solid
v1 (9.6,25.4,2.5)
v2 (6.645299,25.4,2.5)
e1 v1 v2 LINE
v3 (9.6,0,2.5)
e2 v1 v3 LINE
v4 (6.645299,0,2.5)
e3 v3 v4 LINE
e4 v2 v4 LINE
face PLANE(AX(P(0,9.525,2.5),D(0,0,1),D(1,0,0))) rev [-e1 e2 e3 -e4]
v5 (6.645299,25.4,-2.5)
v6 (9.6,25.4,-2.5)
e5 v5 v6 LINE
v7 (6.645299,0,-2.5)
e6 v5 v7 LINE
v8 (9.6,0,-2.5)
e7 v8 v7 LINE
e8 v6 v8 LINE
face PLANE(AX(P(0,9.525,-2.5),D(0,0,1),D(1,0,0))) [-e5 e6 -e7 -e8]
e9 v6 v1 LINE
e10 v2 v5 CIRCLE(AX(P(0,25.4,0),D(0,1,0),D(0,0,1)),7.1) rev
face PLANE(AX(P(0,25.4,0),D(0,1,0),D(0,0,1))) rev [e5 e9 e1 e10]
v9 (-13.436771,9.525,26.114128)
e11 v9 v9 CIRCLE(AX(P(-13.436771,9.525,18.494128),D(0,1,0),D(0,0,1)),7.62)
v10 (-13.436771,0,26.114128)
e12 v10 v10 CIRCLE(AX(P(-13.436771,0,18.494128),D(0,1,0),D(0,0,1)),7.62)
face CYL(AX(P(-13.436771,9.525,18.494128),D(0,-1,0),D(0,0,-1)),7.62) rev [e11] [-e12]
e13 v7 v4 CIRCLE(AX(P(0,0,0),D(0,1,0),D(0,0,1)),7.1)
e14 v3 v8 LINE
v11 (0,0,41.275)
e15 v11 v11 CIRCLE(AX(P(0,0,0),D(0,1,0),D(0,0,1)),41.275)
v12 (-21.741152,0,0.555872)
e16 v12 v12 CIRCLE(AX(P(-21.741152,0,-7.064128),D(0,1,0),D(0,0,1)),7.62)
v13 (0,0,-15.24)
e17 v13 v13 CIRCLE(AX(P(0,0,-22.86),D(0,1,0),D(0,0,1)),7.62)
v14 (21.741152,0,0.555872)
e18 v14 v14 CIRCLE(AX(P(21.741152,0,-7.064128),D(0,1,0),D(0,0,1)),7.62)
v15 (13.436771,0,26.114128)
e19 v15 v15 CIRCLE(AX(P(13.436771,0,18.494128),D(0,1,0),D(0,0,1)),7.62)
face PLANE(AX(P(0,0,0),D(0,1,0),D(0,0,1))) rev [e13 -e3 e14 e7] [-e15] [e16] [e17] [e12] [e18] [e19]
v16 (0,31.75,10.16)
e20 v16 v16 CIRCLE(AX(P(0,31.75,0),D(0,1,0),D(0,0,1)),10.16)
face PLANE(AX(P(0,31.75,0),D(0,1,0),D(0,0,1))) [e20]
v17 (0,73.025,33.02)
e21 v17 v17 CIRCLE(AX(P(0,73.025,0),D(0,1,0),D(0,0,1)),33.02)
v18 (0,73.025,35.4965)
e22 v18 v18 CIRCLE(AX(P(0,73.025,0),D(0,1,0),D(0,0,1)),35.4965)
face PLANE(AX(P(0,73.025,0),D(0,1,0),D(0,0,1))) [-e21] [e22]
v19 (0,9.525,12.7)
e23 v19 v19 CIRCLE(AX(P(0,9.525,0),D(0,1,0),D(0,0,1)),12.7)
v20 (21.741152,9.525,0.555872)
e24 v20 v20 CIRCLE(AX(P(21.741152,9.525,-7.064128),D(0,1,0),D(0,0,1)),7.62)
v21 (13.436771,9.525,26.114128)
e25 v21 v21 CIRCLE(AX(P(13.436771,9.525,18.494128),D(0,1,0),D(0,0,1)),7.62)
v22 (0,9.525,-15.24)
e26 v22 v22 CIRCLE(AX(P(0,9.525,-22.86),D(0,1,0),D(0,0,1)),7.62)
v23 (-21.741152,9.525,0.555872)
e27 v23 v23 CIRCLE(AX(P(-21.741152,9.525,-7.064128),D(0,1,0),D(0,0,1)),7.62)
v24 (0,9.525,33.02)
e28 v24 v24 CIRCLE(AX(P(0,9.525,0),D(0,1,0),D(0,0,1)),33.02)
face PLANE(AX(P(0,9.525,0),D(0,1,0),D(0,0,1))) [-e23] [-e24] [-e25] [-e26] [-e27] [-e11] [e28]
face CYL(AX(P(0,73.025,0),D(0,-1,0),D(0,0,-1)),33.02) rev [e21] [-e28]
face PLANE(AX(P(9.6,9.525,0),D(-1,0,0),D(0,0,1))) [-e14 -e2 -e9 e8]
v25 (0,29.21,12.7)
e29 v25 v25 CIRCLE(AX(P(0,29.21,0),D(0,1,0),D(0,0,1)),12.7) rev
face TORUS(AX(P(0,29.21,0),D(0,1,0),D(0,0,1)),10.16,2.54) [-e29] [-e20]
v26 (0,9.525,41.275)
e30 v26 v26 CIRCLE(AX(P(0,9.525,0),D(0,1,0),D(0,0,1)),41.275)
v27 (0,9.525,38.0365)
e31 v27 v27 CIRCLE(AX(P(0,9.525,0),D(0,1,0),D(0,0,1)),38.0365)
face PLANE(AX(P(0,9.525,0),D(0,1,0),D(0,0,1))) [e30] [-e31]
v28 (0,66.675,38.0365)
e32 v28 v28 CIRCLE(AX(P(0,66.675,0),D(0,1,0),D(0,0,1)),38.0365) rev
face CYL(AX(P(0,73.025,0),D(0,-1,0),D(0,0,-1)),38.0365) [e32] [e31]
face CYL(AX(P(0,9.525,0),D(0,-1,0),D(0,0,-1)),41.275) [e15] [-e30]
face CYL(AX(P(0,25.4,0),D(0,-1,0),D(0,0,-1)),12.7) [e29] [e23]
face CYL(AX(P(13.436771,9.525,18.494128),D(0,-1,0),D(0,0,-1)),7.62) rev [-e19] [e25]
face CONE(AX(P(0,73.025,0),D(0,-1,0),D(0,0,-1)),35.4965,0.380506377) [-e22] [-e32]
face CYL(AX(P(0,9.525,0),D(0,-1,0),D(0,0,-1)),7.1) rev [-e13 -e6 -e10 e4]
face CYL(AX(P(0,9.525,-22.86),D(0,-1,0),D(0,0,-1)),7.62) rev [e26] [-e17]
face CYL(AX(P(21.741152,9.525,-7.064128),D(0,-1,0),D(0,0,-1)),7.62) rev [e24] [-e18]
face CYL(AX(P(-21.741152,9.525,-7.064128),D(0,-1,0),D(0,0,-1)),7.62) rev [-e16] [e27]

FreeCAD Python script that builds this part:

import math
import FreeCAD as App
import Part
import Sketcher
Q = App.Units.Quantity


def edges_at(feature, points):
    """Names of the edges that pass closest to the given points."""
    edges = feature.Shape.Edges
    near = lambda p: min(range(len(edges)), key=lambda i: edges[i].distToShape(Part.Vertex(*p))[0])
    return sorted({f"Edge{near(p) + 1}" for p in points})

doc = App.newDocument("Part")
params = doc.addObject("Spreadsheet::Sheet", "Params")
for row, (alias, value) in enumerate([
    ("sketch1_diameter", "0.6 in"),
    ("sketch1_diameter2", "3.25 in"),
    ("pad1_length", "0.375 in"),
    ("sketch2_diameter", "2.6 in"),
    ("sketch2_diameter2", "2.995 in"),
    ("pad2_length", "2.5 in"),
    ("sketch3_diameter", "1 in"),
    ("pad3_length", "0.625 in"),
    ("chamfer_size", "0.25 in"),
    ("chamfer_size2", "0.1 in"),
    ("sketch4_diameter", "1 in"),
    ("pad4_length", "0.25 in"),
    ("fillet_radius", "0.1 in"),
], start=1):
    params.set(f"A{row}", alias)
    params.set(f"B{row}", "=" + value)
    params.setAlias(f"B{row}", alias)

body = doc.addObject("PartDesign::Body", "Body")

# Sketch on XZ plane
sketch1 = body.newObject("Sketcher::SketchObject", "Sketch")
sketch1.AttachmentSupport = (doc.getObject("XZ_Plane"), [""])
sketch1.MapMode = "FlatFace"
sketch1.addGeometry(Part.Circle(App.Vector(0, 0, 0), App.Vector(0, 0, 1), 41.3), False)
sketch1.addGeometry(Part.Circle(App.Vector(-13.4, 18.5, 0), App.Vector(0, 0, 1), 7.6), False)
sketch1.addGeometry(Part.Circle(App.Vector(13.4, 18.5, 0), App.Vector(0, 0, 1), 7.6), False)
sketch1.addGeometry(Part.LineSegment(App.Vector(9.6, -2.5, 0), App.Vector(9.6, 2.5, 0)), False)
sketch1.addGeometry(Part.LineSegment(App.Vector(9.6, 2.5, 0), App.Vector(6.6, 2.5, 0)), False)
sketch1.addGeometry(Part.ArcOfCircle(Part.Circle(App.Vector(0, 0, 0), App.Vector(0, 0, 1), 7.1), math.radians(21), math.radians(339)), False)
sketch1.addGeometry(Part.LineSegment(App.Vector(6.6, -2.5, 0), App.Vector(9.6, -2.5, 0)), False)
sketch1.addGeometry(Part.Circle(App.Vector(-21.7, -7.1, 0), App.Vector(0, 0, 1), 7.6), False)
sketch1.addGeometry(Part.Circle(App.Vector(0, -22.9, 0), App.Vector(0, 0, 1), 7.6), False)
sketch1.addGeometry(Part.Circle(App.Vector(21.7, -7.1, 0), App.Vector(0, 0, 1), 7.6), False)
sketch1.addConstraint(Sketcher.Constraint("Coincident", 3, 2, 4, 1))
sketch1.addConstraint(Sketcher.Constraint("Coincident", 4, 2, 5, 1))
sketch1.addConstraint(Sketcher.Constraint("Coincident", 5, 2, 6, 1))
sketch1.addConstraint(Sketcher.Constraint("Coincident", 6, 2, 3, 1))
sketch1.addConstraint(Sketcher.Constraint("Vertical", 3))
sketch1.addConstraint(Sketcher.Constraint("Horizontal", 4))
sketch1.addConstraint(Sketcher.Constraint("Horizontal", 6))
sketch1.addConstraint(Sketcher.Constraint("Coincident", 0, 3, -1, 1))
sketch1.addConstraint(Sketcher.Constraint("Coincident", 5, 3, -1, 1))
sketch1.addConstraint(Sketcher.Constraint("Equal", 1, 2))
sketch1.addConstraint(Sketcher.Constraint("Equal", 2, 7))
sketch1.addConstraint(Sketcher.Constraint("Equal", 7, 8))
sketch1.addConstraint(Sketcher.Constraint("Equal", 8, 9))
sketch1.addConstraint(Sketcher.Constraint("Symmetric", 1, 3, 2, 3, -2))
sketch1.addConstraint(Sketcher.Constraint("Symmetric", 7, 3, 9, 3, -2))
sketch1.addConstraint(Sketcher.Constraint("PointOnObject", 8, 3, -2))
sketch1.addConstraint(Sketcher.Constraint("Vertical", 4, 2, 5, 2))
sketch1.addConstraint(Sketcher.Constraint("Diameter", 1, Q("0.6 in")))
sketch1.addConstraint(Sketcher.Constraint("Diameter", 0, Q("3.25 in")))
sketch1.addConstraint(Sketcher.Constraint("DistanceY", 8, 3, -1, 1, Q("0.9 in")))
sketch1.addConstraint(Sketcher.Constraint("Radius", 5, Q("7.1 mm")))
sketch1.addConstraint(Sketcher.Constraint("DistanceX", 4, 2, 4, 1, Q("2.954701 mm")))
sketch1.addConstraint(Sketcher.Constraint("DistanceY", 3, 1, 3, 2, Q("5 mm")))
sketch1.addConstraint(Sketcher.Constraint("DistanceX", 1, 3, -1, 1, Q("13.436771 mm")))
sketch1.addConstraint(Sketcher.Constraint("DistanceY", -1, 1, 1, 3, Q("18.494128 mm")))
sketch1.addConstraint(Sketcher.Constraint("DistanceX", 7, 3, -1, 1, Q("21.741152 mm")))
sketch1.addConstraint(Sketcher.Constraint("DistanceY", 7, 3, -1, 1, Q("7.064128 mm")))
sketch1.setExpression("Constraints[17]", "Params.sketch1_diameter")
sketch1.setExpression("Constraints[18]", "Params.sketch1_diameter2")
pad1 = body.newObject("PartDesign::Pad", "Pad")
pad1.Profile = sketch1
pad1.setExpression("Length", "Params.pad1_length")
pad1.Reversed = True

# Sketch on XZ plane
sketch2 = body.newObject("Sketcher::SketchObject", "Sketch001")
sketch2.AttachmentSupport = (doc.getObject("XZ_Plane"), [""])
sketch2.MapMode = "FlatFace"
sketch2.AttachmentOffset = App.Placement(App.Vector(0, 0, -0.375 * 25.4), App.Rotation())
sketch2.addGeometry(Part.Circle(App.Vector(0, 0, 0), App.Vector(0, 0, 1), 38), False)
sketch2.addGeometry(Part.Circle(App.Vector(0, 0, 0), App.Vector(0, 0, 1), 33), False)
sketch2.addConstraint(Sketcher.Constraint("Coincident", 0, 3, -1, 1))
sketch2.addConstraint(Sketcher.Constraint("Coincident", 1, 3, -1, 1))
sketch2.addConstraint(Sketcher.Constraint("Diameter", 1, Q("2.6 in")))
sketch2.addConstraint(Sketcher.Constraint("Diameter", 0, Q("2.995 in")))
sketch2.setExpression("Constraints[2]", "Params.sketch2_diameter")
sketch2.setExpression("Constraints[3]", "Params.sketch2_diameter2")
pad2 = body.newObject("PartDesign::Pad", "Pad001")
pad2.Profile = sketch2
pad2.setExpression("Length", "Params.pad2_length")
pad2.Reversed = True

# Sketch on XZ plane
sketch3 = body.newObject("Sketcher::SketchObject", "Sketch002")
sketch3.AttachmentSupport = (doc.getObject("XZ_Plane"), [""])
sketch3.MapMode = "FlatFace"
sketch3.AttachmentOffset = App.Placement(App.Vector(0, 0, -0.375 * 25.4), App.Rotation())
sketch3.addGeometry(Part.Circle(App.Vector(0, 0, 0), App.Vector(0, 0, 1), 12.7), False)
sketch3.addGeometry(Part.LineSegment(App.Vector(9.6, -2.5, 0), App.Vector(9.6, 2.5, 0)), False)
sketch3.addGeometry(Part.LineSegment(App.Vector(9.6, 2.5, 0), App.Vector(6.6, 2.5, 0)), False)
sketch3.addGeometry(Part.ArcOfCircle(Part.Circle(App.Vector(0, 0, 0), App.Vector(0, 0, 1), 7.1), math.radians(21), math.radians(339)), False)
sketch3.addGeometry(Part.LineSegment(App.Vector(6.6, -2.5, 0), App.Vector(9.6, -2.5, 0)), False)
sketch3.addConstraint(Sketcher.Constraint("Coincident", 1, 2, 2, 1))
sketch3.addConstraint(Sketcher.Constraint("Coincident", 2, 2, 3, 1))
sketch3.addConstraint(Sketcher.Constraint("Coincident", 3, 2, 4, 1))
sketch3.addConstraint(Sketcher.Constraint("Coincident", 4, 2, 1, 1))
sketch3.addConstraint(Sketcher.Constraint("Vertical", 1))
sketch3.addConstraint(Sketcher.Constraint("Horizontal", 2))
sketch3.addConstraint(Sketcher.Constraint("Horizontal", 4))
sketch3.addConstraint(Sketcher.Constraint("Coincident", 0, 3, -1, 1))
sketch3.addConstraint(Sketcher.Constraint("Coincident", 3, 3, -1, 1))
sketch3.addConstraint(Sketcher.Constraint("Vertical", 2, 2, 3, 2))
sketch3.addConstraint(Sketcher.Constraint("Diameter", 0, Q("1 in")))
sketch3.addConstraint(Sketcher.Constraint("Radius", 3, Q("7.1 mm")))
sketch3.addConstraint(Sketcher.Constraint("DistanceX", 2, 2, 2, 1, Q("2.954701 mm")))
sketch3.addConstraint(Sketcher.Constraint("DistanceY", 1, 1, 1, 2, Q("5 mm")))
sketch3.setExpression("Constraints[10]", "Params.sketch3_diameter")
pad3 = body.newObject("PartDesign::Pad", "Pad002")
pad3.Profile = sketch3
pad3.setExpression("Length", "Params.pad3_length")
pad3.Reversed = True
doc.recompute()

chamfer = body.newObject("PartDesign::Chamfer", "Chamfer")
chamfer.Base = (pad3, edges_at(pad3, [(-38.036, 73.025, 0)]))
chamfer.ChamferType = "Two distances"
chamfer.setExpression("Size", "Params.chamfer_size")
chamfer.setExpression("Size2", "Params.chamfer_size2")

# Sketch on XZ plane
sketch4 = body.newObject("Sketcher::SketchObject", "Sketch003")
sketch4.AttachmentSupport = (doc.getObject("XZ_Plane"), [""])
sketch4.MapMode = "FlatFace"
sketch4.AttachmentOffset = App.Placement(App.Vector(0, 0, -1 * 25.4), App.Rotation())
sketch4.addGeometry(Part.Circle(App.Vector(0, 0, 0), App.Vector(0, 0, 1), 13), False)
sketch4.addConstraint(Sketcher.Constraint("Coincident", 0, 3, -1, 1))
sketch4.addConstraint(Sketcher.Constraint("Diameter", 0, Q("1 in")))
sketch4.setExpression("Constraints[1]", "Params.sketch4_diameter")
pad4 = body.newObject("PartDesign::Pad", "Pad003")
pad4.Profile = sketch4
pad4.setExpression("Length", "Params.pad4_length")
pad4.Reversed = True
doc.recompute()

fillet = body.newObject("PartDesign::Fillet", "Fillet")
fillet.Base = (pad4, edges_at(pad4, [(-12.7, 31.75, 0)]))
fillet.setExpression("Radius", "Params.fillet_radius")

doc.recompute()
